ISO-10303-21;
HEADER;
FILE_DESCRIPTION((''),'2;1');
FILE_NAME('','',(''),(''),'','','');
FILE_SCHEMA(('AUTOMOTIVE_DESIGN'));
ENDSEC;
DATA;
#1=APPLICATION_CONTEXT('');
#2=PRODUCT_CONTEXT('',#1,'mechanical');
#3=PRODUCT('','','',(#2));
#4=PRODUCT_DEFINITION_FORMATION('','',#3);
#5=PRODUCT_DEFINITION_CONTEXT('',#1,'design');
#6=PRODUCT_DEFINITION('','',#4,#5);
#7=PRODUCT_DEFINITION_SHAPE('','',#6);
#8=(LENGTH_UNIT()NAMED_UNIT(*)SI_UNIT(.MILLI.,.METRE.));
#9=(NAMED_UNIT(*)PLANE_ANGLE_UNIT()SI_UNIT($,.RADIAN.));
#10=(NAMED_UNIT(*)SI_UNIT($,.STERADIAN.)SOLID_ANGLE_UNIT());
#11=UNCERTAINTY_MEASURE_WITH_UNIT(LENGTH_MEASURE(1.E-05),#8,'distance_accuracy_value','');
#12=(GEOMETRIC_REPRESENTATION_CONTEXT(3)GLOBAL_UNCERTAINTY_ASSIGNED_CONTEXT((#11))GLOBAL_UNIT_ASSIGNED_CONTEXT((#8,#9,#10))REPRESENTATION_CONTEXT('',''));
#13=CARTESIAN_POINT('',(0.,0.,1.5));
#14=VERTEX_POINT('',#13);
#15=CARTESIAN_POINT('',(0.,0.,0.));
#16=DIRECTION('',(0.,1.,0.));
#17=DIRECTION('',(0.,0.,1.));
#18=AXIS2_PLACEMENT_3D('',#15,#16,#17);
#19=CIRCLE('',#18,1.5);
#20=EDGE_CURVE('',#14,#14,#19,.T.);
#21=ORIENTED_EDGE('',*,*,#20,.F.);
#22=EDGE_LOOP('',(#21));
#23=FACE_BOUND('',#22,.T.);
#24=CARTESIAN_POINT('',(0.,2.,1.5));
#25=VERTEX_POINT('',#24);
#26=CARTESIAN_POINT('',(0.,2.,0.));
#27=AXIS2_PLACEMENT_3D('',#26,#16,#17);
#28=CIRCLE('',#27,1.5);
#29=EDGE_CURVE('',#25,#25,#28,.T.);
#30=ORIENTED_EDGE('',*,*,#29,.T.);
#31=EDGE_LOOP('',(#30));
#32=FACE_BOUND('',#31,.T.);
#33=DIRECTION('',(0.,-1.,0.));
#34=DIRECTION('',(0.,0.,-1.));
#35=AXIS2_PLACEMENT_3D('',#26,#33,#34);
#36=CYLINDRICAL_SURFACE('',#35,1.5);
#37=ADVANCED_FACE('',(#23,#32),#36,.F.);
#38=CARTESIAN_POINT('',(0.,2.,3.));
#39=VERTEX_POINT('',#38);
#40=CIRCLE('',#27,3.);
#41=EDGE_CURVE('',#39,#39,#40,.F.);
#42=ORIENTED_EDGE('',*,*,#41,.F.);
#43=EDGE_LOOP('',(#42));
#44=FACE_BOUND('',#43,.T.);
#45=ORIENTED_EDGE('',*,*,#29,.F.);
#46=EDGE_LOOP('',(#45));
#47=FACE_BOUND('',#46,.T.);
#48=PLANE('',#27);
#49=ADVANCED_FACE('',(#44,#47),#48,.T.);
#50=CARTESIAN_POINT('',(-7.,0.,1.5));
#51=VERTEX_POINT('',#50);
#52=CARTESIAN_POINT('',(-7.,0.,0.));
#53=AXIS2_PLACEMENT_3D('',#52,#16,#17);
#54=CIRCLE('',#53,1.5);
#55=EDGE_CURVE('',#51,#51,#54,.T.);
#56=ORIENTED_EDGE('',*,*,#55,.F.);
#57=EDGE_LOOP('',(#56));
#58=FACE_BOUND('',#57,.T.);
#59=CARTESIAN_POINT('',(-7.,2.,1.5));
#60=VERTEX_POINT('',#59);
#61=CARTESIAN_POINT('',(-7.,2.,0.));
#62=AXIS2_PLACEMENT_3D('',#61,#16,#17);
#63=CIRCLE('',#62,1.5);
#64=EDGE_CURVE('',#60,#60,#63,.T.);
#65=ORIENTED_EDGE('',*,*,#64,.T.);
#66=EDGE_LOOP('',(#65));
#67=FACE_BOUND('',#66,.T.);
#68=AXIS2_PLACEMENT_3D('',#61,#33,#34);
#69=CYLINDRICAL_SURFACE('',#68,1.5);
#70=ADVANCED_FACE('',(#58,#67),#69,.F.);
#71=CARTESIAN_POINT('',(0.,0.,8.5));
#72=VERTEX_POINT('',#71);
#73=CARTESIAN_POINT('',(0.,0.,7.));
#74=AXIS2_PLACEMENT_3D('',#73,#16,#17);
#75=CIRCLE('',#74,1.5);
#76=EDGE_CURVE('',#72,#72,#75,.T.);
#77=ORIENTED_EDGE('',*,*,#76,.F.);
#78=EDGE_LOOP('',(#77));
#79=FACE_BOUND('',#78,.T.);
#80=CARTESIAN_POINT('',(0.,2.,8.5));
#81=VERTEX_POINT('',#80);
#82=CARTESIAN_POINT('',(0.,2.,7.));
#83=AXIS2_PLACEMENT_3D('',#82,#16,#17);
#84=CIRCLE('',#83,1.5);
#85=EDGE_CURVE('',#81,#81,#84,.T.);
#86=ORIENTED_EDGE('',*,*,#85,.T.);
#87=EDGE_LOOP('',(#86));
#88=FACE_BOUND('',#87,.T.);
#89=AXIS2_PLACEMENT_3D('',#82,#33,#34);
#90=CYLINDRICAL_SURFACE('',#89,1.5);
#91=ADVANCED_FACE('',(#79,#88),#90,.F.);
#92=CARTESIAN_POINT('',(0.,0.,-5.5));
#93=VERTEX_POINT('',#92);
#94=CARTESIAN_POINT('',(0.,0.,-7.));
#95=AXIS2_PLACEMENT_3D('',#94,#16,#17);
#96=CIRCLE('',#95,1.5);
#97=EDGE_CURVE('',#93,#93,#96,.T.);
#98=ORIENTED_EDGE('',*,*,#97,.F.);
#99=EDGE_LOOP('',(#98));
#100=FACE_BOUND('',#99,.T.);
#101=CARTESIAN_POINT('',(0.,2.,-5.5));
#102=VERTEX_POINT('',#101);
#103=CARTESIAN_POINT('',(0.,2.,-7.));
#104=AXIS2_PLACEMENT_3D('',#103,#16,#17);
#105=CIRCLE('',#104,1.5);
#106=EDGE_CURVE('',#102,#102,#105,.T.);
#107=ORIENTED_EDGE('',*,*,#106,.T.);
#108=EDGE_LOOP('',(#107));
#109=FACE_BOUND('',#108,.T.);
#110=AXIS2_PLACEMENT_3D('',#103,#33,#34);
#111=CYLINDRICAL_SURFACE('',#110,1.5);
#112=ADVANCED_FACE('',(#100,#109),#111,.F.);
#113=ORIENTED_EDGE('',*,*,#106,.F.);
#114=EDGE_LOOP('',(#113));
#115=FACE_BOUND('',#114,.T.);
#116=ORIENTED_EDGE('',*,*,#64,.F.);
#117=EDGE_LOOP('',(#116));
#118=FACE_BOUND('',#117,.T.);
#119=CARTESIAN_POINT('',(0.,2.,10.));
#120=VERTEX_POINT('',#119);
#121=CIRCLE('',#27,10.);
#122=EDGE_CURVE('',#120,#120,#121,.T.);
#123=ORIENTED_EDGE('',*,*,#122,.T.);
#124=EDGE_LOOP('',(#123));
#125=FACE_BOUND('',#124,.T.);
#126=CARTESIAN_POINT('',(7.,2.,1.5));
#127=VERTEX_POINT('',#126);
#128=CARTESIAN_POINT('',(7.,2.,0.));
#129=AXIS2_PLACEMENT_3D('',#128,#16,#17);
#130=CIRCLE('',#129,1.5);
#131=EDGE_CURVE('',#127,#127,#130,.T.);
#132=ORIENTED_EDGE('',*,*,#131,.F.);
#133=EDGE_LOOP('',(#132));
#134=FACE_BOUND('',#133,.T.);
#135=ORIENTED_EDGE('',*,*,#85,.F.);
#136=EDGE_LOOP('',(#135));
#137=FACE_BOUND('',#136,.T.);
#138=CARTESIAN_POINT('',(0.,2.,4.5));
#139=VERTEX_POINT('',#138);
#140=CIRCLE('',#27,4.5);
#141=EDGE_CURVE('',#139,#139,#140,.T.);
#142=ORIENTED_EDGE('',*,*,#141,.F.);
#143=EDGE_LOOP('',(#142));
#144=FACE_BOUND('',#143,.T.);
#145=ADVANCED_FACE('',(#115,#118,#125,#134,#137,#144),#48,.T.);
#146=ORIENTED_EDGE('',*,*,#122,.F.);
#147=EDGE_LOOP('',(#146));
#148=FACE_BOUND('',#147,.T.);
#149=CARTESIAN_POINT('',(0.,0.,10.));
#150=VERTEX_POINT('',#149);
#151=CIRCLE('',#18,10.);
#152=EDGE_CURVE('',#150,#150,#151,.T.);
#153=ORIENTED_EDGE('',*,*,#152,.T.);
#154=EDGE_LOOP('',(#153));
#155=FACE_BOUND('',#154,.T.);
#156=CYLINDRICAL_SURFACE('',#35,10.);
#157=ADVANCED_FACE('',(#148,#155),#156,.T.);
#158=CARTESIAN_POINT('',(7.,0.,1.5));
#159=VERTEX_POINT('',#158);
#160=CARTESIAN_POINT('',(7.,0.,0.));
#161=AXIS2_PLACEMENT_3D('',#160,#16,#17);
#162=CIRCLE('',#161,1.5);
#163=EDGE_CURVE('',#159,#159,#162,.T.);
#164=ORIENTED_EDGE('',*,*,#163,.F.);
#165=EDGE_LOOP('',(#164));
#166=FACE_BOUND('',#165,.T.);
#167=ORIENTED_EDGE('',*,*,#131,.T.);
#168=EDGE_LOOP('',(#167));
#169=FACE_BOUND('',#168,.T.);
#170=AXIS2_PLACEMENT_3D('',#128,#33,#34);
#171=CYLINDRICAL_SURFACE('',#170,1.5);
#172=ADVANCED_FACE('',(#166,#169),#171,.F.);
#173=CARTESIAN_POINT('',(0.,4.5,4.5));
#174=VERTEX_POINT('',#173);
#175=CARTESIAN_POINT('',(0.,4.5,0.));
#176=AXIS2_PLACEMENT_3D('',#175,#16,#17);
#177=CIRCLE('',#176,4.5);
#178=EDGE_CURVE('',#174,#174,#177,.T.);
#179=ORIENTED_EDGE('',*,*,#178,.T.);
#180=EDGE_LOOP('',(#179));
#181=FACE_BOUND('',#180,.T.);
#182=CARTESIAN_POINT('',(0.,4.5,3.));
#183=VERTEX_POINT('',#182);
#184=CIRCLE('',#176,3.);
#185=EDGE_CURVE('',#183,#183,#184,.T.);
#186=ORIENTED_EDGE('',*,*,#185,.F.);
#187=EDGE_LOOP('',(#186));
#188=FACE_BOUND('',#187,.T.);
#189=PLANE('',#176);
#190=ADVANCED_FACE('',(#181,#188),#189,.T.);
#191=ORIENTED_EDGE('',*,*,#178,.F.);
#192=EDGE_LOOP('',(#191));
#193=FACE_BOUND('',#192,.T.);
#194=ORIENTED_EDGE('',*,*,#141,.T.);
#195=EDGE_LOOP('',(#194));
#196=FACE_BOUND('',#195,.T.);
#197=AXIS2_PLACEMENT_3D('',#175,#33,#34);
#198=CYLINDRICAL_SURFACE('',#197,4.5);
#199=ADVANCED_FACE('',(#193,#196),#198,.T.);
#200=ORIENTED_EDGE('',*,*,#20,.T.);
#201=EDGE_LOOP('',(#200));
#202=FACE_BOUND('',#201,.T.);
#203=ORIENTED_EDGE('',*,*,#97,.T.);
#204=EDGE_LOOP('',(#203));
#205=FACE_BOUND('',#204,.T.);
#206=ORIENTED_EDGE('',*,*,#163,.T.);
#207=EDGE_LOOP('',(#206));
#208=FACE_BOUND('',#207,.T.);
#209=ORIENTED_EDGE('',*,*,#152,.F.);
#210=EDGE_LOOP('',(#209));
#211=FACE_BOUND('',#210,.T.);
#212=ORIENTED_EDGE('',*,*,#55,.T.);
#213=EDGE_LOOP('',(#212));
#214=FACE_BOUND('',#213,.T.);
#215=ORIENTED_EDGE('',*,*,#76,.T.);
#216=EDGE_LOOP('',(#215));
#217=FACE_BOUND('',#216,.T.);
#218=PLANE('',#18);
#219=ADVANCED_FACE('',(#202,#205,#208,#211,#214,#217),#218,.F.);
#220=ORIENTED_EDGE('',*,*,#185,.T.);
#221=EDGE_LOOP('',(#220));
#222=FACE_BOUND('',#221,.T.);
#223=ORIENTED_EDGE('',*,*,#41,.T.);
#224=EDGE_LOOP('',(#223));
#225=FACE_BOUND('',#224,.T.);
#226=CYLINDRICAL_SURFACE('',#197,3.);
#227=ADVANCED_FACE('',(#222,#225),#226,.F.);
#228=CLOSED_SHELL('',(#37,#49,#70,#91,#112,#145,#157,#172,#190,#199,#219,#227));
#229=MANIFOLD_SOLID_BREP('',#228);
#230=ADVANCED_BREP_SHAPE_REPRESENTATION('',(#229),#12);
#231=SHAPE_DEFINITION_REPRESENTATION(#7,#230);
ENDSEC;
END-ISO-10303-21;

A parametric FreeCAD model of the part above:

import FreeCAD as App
import Part
import Sketcher
from FreeCAD import Vector

doc = App.newDocument("Part")
body = doc.addObject("PartDesign::Body", "Body")

# Sketch on XZ plane
sketch1 = doc.addObject("Sketcher::SketchObject", "Sketch")
body.addObject(sketch1)
sketch1.AttachmentSupport = (doc.XZ_Plane, [""])
sketch1.MapMode = "FlatFace"
sketch1.addGeometry(Part.Circle(Vector(0, 0, 0), Vector(0, 0, 1), 10), False)
sketch1.addGeometry(Part.Circle(Vector(0, 7, 0), Vector(0, 0, 1), 1.5), False)
sketch1.addGeometry(Part.Circle(Vector(-7, 0, 0), Vector(0, 0, 1), 1.5), False)
sketch1.addGeometry(Part.Circle(Vector(0, 0, 0), Vector(0, 0, 1), 1.5), False)
sketch1.addGeometry(Part.Circle(Vector(7, 0, 0), Vector(0, 0, 1), 1.5), False)
sketch1.addGeometry(Part.Circle(Vector(0, -7, 0), Vector(0, 0, 1), 1.5), False)
sketch1.addConstraint(Sketcher.Constraint("Coincident", 0, 3, -1, 1))
sketch1.addConstraint(Sketcher.Constraint("Coincident", 3, 3, -1, 1))
sketch1.addConstraint(Sketcher.Constraint("Equal", 1, 2))
sketch1.addConstraint(Sketcher.Constraint("Equal", 2, 3))
sketch1.addConstraint(Sketcher.Constraint("Equal", 3, 4))
sketch1.addConstraint(Sketcher.Constraint("Equal", 4, 5))
sketch1.addConstraint(Sketcher.Constraint("Symmetric", 2, 3, 4, 3, -1, 1))
sketch1.addConstraint(Sketcher.Constraint("Symmetric", 1, 3, 5, 3, -1, 1))
sketch1.addConstraint(Sketcher.Constraint("PointOnObject", 1, 3, -2))
sketch1.addConstraint(Sketcher.Constraint("PointOnObject", 2, 3, -1))
sketch1.addConstraint(Sketcher.Constraint("Diameter", 0, 20.0))
sketch1.addConstraint(Sketcher.Constraint("Diameter", 1, 3.0))
sketch1.addConstraint(Sketcher.Constraint("DistanceY", -1, 1, 1, 3, 7.0))
sketch1.addConstraint(Sketcher.Constraint("DistanceX", 2, 3, -1, 1, 7.0))
pad1 = doc.addObject("PartDesign::Pad", "Pad")
body.addObject(pad1)
pad1.Profile = sketch1
pad1.Length = 2
pad1.Reversed = True

# Sketch on XZ plane
sketch2 = doc.addObject("Sketcher::SketchObject", "Sketch001")
body.addObject(sketch2)
sketch2.AttachmentSupport = (doc.XZ_Plane, [""])
sketch2.MapMode = "FlatFace"
sketch2.AttachmentOffset = App.Placement(Vector(0, 0, -2), App.Rotation())
sketch2.addGeometry(Part.Circle(Vector(0, 0, 0), Vector(0, 0, 1), 4.5), False)
sketch2.addGeometry(Part.Circle(Vector(0, 0, 0), Vector(0, 0, 1), 3), False)
sketch2.addConstraint(Sketcher.Constraint("Coincident", 0, 3, -1, 1))
sketch2.addConstraint(Sketcher.Constraint("Coincident", 1, 3, -1, 1))
sketch2.addConstraint(Sketcher.Constraint("Diameter", 0, 9.0))
sketch2.addConstraint(Sketcher.Constraint("Diameter", 1, 6.0))
pad2 = doc.addObject("PartDesign::Pad", "Pad001")
body.addObject(pad2)
pad2.Profile = sketch2
pad2.Length = 2.5
pad2.Reversed = True

doc.recompute()
